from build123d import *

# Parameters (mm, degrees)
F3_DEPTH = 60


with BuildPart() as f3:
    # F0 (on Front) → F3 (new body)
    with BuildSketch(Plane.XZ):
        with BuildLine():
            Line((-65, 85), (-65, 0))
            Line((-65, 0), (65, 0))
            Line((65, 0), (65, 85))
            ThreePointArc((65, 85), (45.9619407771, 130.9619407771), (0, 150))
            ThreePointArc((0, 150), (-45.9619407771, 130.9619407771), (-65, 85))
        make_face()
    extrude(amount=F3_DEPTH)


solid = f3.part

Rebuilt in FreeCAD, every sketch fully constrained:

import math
import FreeCAD as App
import Part
import Sketcher

V = App.Vector

doc = App.newDocument("Part")
body = doc.addObject("PartDesign::Body", "Body")

sketch1 = body.newObject("Sketcher::SketchObject", "Sketch")
sketch1.AttachmentSupport = (doc.getObject("XZ_Plane"), [""])
sketch1.MapMode = "FlatFace"
sketch1.addGeometry([
    Part.LineSegment(V(-65, 85, 0), V(-65, 0, 0)),
    Part.LineSegment(V(-65, 0, 0), V(65, 0, 0)),
    Part.LineSegment(V(65, 0, 0), V(65, 85, 0)),
    Part.ArcOfCircle(Part.Circle(V(0, 85, 0), V(0, 0, 1), 65), math.radians(0), math.radians(90)),
    Part.ArcOfCircle(Part.Circle(V(0, 85, 0), V(0, 0, 1), 65), math.radians(90), math.radians(180)),
], False)
sketch1.addConstraint([
    Sketcher.Constraint("Coincident", 0, 2, 1, 1),
    Sketcher.Constraint("Coincident", 1, 2, 2, 1),
    Sketcher.Constraint("Tangent", 2, 2, 3, 1),
    Sketcher.Constraint("Tangent", 3, 2, 4, 1),
    Sketcher.Constraint("Tangent", 4, 2, 0, 1),
    Sketcher.Constraint("Vertical", 0),
    Sketcher.Constraint("Horizontal", 1),
    Sketcher.Constraint("Vertical", 2),
    Sketcher.Constraint("Equal", 3, 4),
    Sketcher.Constraint("Symmetric", 0, 2, 1, 2, -1, 1),
    Sketcher.Constraint("PointOnObject", 3, 2, -2),
    Sketcher.Constraint("Radius", 3, 65.0),
    Sketcher.Constraint("DistanceY", 0, 2, 0, 1, 85.0),
])
pad1 = body.newObject("PartDesign::Pad", "Pad")
pad1.Profile = sketch1
pad1.Length = 60

doc.recompute()
